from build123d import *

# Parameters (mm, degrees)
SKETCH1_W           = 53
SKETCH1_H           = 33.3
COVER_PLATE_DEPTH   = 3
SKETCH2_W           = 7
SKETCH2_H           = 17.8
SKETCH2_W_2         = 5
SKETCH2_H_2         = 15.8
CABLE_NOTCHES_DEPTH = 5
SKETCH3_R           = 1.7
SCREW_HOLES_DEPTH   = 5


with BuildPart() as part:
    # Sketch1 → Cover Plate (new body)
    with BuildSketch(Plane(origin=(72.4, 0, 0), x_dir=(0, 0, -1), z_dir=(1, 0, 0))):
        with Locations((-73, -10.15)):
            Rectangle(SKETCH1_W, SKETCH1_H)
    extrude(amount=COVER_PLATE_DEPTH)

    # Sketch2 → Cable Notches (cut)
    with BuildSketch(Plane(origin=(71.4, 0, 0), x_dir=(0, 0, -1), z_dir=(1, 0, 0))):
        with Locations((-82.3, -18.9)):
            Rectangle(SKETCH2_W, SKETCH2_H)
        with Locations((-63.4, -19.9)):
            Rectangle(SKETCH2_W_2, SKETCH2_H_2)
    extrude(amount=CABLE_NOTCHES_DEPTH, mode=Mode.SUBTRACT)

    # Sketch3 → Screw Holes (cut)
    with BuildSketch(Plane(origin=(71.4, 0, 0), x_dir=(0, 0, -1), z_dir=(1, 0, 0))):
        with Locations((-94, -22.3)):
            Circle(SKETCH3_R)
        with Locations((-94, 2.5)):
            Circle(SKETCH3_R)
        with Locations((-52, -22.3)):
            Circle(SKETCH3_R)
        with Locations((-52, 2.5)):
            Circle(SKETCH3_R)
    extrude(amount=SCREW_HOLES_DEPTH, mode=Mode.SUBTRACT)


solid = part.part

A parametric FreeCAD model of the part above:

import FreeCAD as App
import Part
import Sketcher

V = App.Vector


def add_polygon(sketch, points):
    """Adds a closed chain of lines whose ends are joined by coincident constraints."""
    first, n = sketch.GeometryCount, len(points)
    for a, b in zip(points, points[1:] + points[:1]):
        sketch.addGeometry(Part.LineSegment(App.Vector(*a, 0), App.Vector(*b, 0)), False)
    for i in range(n):
        sketch.addConstraint(Sketcher.Constraint("Coincident", first + i, 2, first + (i + 1) % n, 1))

doc = App.newDocument("Part")
body = doc.addObject("PartDesign::Body", "Body")

sketch1 = body.newObject("Sketcher::SketchObject", "Sketch")
sketch1.AttachmentSupport = (doc.getObject("YZ_Plane"), [""])
sketch1.MapMode = "FlatFace"
sketch1.AttachmentOffset = App.Placement(V(0, 0, 72.4), App.Rotation())
add_polygon(sketch1, [(6, 100), (-27, 100), (-27, 46), (6, 46)])
sketch1.addConstraint([
    Sketcher.Constraint("Horizontal", 0),
    Sketcher.Constraint("Vertical", 1),
    Sketcher.Constraint("Horizontal", 2),
    Sketcher.Constraint("Vertical", 3),
    Sketcher.Constraint("DistanceY", 1, 2, 1, 1, 53.0),
    Sketcher.Constraint("DistanceX", 0, 2, 0, 1, 33.3),
    Sketcher.Constraint("DistanceX", 0, 2, -1, 1, 26.8),
    Sketcher.Constraint("DistanceY", -1, 1, 0, 2, 99.5),
])
pad1 = body.newObject("PartDesign::Pad", "Pad")
pad1.Profile = sketch1
pad1.Length = 3

sketch2 = body.newObject("Sketcher::SketchObject", "Sketch001")
sketch2.AttachmentSupport = (doc.getObject("YZ_Plane"), [""])
sketch2.MapMode = "FlatFace"
sketch2.AttachmentOffset = App.Placement(V(0, 0, 71.4), App.Rotation())
add_polygon(sketch2, [(-10, 86), (-28, 86), (-28, 79), (-10, 79)])
add_polygon(sketch2, [(-12, 66), (-28, 66), (-28, 61), (-12, 61)])
sketch2.addConstraint([
    Sketcher.Constraint("Horizontal", 0),
    Sketcher.Constraint("Vertical", 1),
    Sketcher.Constraint("Horizontal", 2),
    Sketcher.Constraint("Vertical", 3),
    Sketcher.Constraint("Horizontal", 4),
    Sketcher.Constraint("Vertical", 5),
    Sketcher.Constraint("Horizontal", 6),
    Sketcher.Constraint("Vertical", 7),
    Sketcher.Constraint("Vertical", 1, 2, 4, 2),
    Sketcher.Constraint("DistanceY", 1, 2, 1, 1, 7.0),
    Sketcher.Constraint("DistanceY", 5, 2, 5, 1, 5.0),
    Sketcher.Constraint("DistanceX", 0, 2, 0, 1, 17.8),
    Sketcher.Constraint("DistanceX", 4, 2, 4, 1, 15.8),
    Sketcher.Constraint("DistanceX", 2, 2, -1, 1, 10.0),
    Sketcher.Constraint("DistanceY", -1, 1, 0, 2, 85.8),
    Sketcher.Constraint("DistanceY", -1, 1, 4, 2, 65.9),
])
pocket1 = body.newObject("PartDesign::Pocket", "Pocket")
pocket1.Profile = sketch2
pocket1.Length = 5
pocket1.Reversed = True

sketch3 = body.newObject("Sketcher::SketchObject", "Sketch002")
sketch3.AttachmentSupport = (doc.getObject("YZ_Plane"), [""])
sketch3.MapMode = "FlatFace"
sketch3.AttachmentOffset = App.Placement(V(0, 0, 71.4), App.Rotation())
sketch3.addGeometry([
    Part.Circle(V(-22.3, 94, 0), V(0, 0, 1), 1.7),
    Part.Circle(V(2.5, 94, 0), V(0, 0, 1), 1.7),
    Part.Circle(V(-22.3, 52, 0), V(0, 0, 1), 1.7),
    Part.Circle(V(2.5, 52, 0), V(0, 0, 1), 1.7),
], False)
sketch3.addConstraint([
    Sketcher.Constraint("Equal", 0, 1),
    Sketcher.Constraint("Equal", 1, 2),
    Sketcher.Constraint("Equal", 2, 3),
    Sketcher.Constraint("Horizontal", 0, 3, 1, 3),
    Sketcher.Constraint("Horizontal", 2, 3, 3, 3),
    Sketcher.Constraint("Vertical", 0, 3, 2, 3),
    Sketcher.Constraint("Vertical", 1, 3, 3, 3),
    Sketcher.Constraint("Diameter", 0, 3.4),
    Sketcher.Constraint("DistanceY", -1, 1, 0, 3, 94.0),
    Sketcher.Constraint("DistanceY", -1, 1, 2, 3, 52.0),
    Sketcher.Constraint("DistanceX", 0, 3, -1, 1, 22.3),
    Sketcher.Constraint("DistanceX", -1, 1, 1, 3, 2.5),
])
pocket2 = body.newObject("PartDesign::Pocket", "Pocket001")
pocket2.Profile = sketch3
pocket2.Length = 5
pocket2.Reversed = True

doc.recompute()
